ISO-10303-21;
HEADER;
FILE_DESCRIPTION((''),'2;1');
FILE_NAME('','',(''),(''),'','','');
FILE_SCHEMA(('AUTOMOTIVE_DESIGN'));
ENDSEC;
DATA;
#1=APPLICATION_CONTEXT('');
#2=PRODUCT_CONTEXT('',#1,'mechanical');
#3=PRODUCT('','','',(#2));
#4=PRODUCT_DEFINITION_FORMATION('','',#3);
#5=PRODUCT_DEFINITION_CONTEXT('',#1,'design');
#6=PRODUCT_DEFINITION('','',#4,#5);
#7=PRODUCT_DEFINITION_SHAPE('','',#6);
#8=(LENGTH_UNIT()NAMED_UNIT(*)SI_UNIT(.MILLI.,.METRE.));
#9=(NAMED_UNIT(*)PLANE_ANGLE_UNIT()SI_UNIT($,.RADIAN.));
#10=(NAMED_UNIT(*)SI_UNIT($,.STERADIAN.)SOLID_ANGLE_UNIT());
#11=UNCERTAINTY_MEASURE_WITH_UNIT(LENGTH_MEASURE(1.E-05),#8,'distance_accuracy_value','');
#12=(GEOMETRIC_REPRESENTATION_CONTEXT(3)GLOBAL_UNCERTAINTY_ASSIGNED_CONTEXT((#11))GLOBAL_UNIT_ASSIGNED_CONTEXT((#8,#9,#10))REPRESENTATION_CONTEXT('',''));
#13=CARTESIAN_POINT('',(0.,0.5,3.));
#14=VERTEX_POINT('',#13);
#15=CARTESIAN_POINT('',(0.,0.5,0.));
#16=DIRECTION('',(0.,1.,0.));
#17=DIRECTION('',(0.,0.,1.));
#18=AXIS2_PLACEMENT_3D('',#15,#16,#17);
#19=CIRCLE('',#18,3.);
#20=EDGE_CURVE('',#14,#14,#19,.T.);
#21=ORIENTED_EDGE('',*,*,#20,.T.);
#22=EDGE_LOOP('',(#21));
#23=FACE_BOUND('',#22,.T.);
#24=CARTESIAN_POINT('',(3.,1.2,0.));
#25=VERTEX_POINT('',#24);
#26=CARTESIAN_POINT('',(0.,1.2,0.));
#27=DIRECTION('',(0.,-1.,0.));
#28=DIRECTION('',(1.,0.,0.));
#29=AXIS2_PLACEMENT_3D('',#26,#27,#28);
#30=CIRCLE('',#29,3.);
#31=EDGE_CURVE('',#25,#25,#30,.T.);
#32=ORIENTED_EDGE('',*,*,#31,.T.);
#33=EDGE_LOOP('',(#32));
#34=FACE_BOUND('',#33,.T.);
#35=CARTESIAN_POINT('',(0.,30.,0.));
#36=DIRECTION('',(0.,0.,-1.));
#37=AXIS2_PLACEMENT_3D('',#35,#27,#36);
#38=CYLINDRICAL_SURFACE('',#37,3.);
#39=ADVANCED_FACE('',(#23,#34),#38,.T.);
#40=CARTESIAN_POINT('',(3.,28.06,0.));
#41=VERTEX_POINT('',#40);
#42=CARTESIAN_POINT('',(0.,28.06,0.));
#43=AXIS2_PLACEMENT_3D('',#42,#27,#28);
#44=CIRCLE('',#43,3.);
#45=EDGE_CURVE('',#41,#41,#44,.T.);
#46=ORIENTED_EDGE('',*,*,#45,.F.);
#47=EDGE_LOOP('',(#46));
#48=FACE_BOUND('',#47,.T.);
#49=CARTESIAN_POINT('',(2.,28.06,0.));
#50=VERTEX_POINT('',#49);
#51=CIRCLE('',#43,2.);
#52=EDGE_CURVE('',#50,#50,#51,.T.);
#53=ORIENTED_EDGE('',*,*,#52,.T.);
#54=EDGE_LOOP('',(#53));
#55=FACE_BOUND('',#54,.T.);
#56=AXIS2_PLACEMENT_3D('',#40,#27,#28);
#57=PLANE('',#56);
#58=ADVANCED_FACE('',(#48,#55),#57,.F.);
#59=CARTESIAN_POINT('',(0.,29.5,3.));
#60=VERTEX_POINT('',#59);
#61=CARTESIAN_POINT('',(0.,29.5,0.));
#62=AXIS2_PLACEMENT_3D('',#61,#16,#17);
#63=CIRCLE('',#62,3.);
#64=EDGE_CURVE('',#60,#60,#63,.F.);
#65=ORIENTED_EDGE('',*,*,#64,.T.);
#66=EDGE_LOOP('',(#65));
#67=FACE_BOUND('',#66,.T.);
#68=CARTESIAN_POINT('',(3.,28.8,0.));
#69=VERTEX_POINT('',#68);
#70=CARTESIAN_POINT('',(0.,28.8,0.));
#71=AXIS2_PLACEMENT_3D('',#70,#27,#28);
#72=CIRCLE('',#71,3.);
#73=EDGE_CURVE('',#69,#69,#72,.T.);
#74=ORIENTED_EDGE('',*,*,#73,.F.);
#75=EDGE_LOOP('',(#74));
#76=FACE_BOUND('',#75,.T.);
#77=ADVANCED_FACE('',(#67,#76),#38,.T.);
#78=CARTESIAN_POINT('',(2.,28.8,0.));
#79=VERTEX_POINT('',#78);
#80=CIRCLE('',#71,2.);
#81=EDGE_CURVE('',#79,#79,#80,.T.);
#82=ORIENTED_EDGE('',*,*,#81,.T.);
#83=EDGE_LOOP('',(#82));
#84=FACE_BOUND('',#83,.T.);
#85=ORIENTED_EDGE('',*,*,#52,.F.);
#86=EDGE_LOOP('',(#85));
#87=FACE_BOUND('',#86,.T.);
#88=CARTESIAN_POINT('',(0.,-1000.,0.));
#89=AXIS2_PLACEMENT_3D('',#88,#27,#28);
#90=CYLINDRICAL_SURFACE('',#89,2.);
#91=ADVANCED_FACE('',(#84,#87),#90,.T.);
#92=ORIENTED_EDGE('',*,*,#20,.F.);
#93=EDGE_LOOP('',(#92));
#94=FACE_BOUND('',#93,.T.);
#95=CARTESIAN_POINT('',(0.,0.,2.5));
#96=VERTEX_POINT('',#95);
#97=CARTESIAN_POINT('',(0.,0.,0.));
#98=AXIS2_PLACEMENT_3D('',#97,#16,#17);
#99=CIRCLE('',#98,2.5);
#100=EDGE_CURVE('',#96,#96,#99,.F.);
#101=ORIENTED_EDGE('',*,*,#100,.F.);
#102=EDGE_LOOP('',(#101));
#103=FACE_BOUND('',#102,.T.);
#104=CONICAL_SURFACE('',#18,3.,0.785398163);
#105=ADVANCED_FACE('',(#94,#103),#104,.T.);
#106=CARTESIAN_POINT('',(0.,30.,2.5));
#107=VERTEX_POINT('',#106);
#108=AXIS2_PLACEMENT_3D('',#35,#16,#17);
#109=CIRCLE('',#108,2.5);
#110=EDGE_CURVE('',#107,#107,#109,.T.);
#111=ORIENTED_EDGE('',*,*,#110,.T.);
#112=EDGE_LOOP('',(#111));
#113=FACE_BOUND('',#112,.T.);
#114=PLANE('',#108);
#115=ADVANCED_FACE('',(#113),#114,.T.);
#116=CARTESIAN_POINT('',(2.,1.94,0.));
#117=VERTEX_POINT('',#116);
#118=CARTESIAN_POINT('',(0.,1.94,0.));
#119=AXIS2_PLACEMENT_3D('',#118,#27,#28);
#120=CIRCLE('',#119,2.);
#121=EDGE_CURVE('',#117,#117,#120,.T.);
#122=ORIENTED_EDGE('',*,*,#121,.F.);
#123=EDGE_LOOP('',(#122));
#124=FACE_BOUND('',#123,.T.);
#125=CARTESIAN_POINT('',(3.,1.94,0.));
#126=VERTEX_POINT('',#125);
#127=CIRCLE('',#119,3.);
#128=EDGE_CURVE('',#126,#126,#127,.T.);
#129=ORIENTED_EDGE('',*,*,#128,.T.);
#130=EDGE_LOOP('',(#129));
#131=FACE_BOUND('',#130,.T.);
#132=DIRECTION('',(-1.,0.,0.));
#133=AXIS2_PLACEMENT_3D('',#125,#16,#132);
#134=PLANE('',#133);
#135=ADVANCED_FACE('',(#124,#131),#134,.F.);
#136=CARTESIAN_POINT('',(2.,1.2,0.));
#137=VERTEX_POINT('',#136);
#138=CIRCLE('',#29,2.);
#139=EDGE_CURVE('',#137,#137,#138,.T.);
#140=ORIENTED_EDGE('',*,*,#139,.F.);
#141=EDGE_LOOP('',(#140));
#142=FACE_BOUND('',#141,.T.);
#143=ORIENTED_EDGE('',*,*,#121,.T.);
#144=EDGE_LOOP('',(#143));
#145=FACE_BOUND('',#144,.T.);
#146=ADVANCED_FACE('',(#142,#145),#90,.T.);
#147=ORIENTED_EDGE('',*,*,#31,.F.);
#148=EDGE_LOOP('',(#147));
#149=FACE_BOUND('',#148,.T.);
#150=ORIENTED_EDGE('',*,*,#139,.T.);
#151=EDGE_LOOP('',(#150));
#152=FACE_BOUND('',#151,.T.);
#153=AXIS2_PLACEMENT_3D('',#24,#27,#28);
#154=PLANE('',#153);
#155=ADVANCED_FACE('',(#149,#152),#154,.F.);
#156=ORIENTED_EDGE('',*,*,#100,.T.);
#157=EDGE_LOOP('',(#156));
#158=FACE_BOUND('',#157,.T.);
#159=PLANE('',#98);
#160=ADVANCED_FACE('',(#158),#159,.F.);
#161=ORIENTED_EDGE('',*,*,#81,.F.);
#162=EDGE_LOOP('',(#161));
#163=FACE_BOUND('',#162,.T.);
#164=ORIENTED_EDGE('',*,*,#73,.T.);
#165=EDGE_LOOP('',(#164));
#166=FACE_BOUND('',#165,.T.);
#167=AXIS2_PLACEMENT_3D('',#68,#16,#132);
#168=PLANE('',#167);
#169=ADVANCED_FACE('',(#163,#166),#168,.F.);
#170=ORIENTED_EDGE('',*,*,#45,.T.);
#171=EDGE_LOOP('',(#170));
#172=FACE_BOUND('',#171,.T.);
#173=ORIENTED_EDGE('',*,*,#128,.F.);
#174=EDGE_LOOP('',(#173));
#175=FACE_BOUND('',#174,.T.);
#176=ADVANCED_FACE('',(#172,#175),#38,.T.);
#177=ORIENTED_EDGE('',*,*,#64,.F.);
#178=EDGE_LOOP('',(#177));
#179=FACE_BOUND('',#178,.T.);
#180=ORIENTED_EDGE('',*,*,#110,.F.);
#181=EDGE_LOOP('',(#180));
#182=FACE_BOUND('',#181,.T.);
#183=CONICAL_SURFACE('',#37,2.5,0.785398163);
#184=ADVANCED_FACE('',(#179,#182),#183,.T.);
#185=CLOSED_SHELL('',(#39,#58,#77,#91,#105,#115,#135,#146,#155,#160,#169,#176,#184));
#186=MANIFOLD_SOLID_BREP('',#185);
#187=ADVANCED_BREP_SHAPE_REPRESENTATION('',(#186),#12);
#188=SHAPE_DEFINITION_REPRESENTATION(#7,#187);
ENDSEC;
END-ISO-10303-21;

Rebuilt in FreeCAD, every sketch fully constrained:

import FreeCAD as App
import Part
import Sketcher


def edges_at(feature, points):
    """Names of the edges that pass closest to the given points."""
    edges = feature.Shape.Edges
    near = lambda p: min(range(len(edges)), key=lambda i: edges[i].distToShape(Part.Vertex(*p))[0])
    return sorted({f"Edge{near(p) + 1}" for p in points})


def add_polygon(sketch, points):
    """Adds a closed chain of lines whose ends are joined by coincident constraints."""
    first, n = sketch.GeometryCount, len(points)
    for a, b in zip(points, points[1:] + points[:1]):
        sketch.addGeometry(Part.LineSegment(App.Vector(*a, 0), App.Vector(*b, 0)), False)
    for i in range(n):
        sketch.addConstraint(Sketcher.Constraint("Coincident", first + i, 2, first + (i + 1) % n, 1))

doc = App.newDocument("Part")
body = doc.addObject("PartDesign::Body", "Body")

# Sketch on XZ plane
sketch1 = body.newObject("Sketcher::SketchObject", "Sketch")
sketch1.AttachmentSupport = (doc.getObject("XZ_Plane"), [""])
sketch1.MapMode = "FlatFace"
sketch1.addGeometry(Part.Circle(App.Vector(0, 0, 0), App.Vector(0, 0, 1), 3), False)
sketch1.addConstraint(Sketcher.Constraint("Coincident", 0, 3, -1, 1))
sketch1.addConstraint(Sketcher.Constraint("Diameter", 0, 6.0))
pad1 = body.newObject("PartDesign::Pad", "Pad")
pad1.Profile = sketch1
pad1.Length = 30
pad1.Reversed = True

# Sketch on XY plane
sketch2 = body.newObject("Sketcher::SketchObject", "Sketch001")
sketch2.AttachmentSupport = (doc.getObject("XY_Plane"), [""])
sketch2.MapMode = "FlatFace"
add_polygon(sketch2, [(2, 28.8), (2, 28.1), (3, 28.1), (3, 28.8)])  # lines 0-3
add_polygon(sketch2, [(2, 1.9), (2, 1.2), (3, 1.2), (3, 1.9)])  # lines 4-7
sketch2.addConstraint(Sketcher.Constraint("Vertical", 0))
sketch2.addConstraint(Sketcher.Constraint("Horizontal", 1))
sketch2.addConstraint(Sketcher.Constraint("Vertical", 2))
sketch2.addConstraint(Sketcher.Constraint("Horizontal", 3))
sketch2.addConstraint(Sketcher.Constraint("Vertical", 4))
sketch2.addConstraint(Sketcher.Constraint("Horizontal", 5))
sketch2.addConstraint(Sketcher.Constraint("Vertical", 6))
sketch2.addConstraint(Sketcher.Constraint("Horizontal", 7))
sketch2.addConstraint(Sketcher.Constraint("Vertical", 3, 2, 4, 2))
sketch2.addConstraint(Sketcher.Constraint("Vertical", 2, 2, 5, 2))
sketch2.addConstraint(Sketcher.Constraint("Equal", 2, 4))
sketch2.addConstraint(Sketcher.Constraint("DistanceX", 1, 1, 1, 2, 1.0))
sketch2.addConstraint(Sketcher.Constraint("DistanceX", -1, 1, 0, 2, 2.0))
sketch2.addConstraint(Sketcher.Constraint("DistanceY", 0, 2, 0, 1, 0.74))
sketch2.addConstraint(Sketcher.Constraint("DistanceY", -1, 1, 2, 2, 28.8))
sketch2.addConstraint(Sketcher.Constraint("DistanceY", -1, 1, 4, 2, 1.2))
groove = body.newObject("PartDesign::Groove", "Groove")
groove.Profile = sketch2
groove.ReferenceAxis = (sketch2, ["V_Axis"])
groove.Angle = 360
doc.recompute()

chamfer = body.newObject("PartDesign::Chamfer", "Chamfer")
chamfer.Base = (groove, edges_at(groove, [(0, 0, -3), (0, 30, -3)]))
chamfer.Size = 0.5

doc.recompute()
